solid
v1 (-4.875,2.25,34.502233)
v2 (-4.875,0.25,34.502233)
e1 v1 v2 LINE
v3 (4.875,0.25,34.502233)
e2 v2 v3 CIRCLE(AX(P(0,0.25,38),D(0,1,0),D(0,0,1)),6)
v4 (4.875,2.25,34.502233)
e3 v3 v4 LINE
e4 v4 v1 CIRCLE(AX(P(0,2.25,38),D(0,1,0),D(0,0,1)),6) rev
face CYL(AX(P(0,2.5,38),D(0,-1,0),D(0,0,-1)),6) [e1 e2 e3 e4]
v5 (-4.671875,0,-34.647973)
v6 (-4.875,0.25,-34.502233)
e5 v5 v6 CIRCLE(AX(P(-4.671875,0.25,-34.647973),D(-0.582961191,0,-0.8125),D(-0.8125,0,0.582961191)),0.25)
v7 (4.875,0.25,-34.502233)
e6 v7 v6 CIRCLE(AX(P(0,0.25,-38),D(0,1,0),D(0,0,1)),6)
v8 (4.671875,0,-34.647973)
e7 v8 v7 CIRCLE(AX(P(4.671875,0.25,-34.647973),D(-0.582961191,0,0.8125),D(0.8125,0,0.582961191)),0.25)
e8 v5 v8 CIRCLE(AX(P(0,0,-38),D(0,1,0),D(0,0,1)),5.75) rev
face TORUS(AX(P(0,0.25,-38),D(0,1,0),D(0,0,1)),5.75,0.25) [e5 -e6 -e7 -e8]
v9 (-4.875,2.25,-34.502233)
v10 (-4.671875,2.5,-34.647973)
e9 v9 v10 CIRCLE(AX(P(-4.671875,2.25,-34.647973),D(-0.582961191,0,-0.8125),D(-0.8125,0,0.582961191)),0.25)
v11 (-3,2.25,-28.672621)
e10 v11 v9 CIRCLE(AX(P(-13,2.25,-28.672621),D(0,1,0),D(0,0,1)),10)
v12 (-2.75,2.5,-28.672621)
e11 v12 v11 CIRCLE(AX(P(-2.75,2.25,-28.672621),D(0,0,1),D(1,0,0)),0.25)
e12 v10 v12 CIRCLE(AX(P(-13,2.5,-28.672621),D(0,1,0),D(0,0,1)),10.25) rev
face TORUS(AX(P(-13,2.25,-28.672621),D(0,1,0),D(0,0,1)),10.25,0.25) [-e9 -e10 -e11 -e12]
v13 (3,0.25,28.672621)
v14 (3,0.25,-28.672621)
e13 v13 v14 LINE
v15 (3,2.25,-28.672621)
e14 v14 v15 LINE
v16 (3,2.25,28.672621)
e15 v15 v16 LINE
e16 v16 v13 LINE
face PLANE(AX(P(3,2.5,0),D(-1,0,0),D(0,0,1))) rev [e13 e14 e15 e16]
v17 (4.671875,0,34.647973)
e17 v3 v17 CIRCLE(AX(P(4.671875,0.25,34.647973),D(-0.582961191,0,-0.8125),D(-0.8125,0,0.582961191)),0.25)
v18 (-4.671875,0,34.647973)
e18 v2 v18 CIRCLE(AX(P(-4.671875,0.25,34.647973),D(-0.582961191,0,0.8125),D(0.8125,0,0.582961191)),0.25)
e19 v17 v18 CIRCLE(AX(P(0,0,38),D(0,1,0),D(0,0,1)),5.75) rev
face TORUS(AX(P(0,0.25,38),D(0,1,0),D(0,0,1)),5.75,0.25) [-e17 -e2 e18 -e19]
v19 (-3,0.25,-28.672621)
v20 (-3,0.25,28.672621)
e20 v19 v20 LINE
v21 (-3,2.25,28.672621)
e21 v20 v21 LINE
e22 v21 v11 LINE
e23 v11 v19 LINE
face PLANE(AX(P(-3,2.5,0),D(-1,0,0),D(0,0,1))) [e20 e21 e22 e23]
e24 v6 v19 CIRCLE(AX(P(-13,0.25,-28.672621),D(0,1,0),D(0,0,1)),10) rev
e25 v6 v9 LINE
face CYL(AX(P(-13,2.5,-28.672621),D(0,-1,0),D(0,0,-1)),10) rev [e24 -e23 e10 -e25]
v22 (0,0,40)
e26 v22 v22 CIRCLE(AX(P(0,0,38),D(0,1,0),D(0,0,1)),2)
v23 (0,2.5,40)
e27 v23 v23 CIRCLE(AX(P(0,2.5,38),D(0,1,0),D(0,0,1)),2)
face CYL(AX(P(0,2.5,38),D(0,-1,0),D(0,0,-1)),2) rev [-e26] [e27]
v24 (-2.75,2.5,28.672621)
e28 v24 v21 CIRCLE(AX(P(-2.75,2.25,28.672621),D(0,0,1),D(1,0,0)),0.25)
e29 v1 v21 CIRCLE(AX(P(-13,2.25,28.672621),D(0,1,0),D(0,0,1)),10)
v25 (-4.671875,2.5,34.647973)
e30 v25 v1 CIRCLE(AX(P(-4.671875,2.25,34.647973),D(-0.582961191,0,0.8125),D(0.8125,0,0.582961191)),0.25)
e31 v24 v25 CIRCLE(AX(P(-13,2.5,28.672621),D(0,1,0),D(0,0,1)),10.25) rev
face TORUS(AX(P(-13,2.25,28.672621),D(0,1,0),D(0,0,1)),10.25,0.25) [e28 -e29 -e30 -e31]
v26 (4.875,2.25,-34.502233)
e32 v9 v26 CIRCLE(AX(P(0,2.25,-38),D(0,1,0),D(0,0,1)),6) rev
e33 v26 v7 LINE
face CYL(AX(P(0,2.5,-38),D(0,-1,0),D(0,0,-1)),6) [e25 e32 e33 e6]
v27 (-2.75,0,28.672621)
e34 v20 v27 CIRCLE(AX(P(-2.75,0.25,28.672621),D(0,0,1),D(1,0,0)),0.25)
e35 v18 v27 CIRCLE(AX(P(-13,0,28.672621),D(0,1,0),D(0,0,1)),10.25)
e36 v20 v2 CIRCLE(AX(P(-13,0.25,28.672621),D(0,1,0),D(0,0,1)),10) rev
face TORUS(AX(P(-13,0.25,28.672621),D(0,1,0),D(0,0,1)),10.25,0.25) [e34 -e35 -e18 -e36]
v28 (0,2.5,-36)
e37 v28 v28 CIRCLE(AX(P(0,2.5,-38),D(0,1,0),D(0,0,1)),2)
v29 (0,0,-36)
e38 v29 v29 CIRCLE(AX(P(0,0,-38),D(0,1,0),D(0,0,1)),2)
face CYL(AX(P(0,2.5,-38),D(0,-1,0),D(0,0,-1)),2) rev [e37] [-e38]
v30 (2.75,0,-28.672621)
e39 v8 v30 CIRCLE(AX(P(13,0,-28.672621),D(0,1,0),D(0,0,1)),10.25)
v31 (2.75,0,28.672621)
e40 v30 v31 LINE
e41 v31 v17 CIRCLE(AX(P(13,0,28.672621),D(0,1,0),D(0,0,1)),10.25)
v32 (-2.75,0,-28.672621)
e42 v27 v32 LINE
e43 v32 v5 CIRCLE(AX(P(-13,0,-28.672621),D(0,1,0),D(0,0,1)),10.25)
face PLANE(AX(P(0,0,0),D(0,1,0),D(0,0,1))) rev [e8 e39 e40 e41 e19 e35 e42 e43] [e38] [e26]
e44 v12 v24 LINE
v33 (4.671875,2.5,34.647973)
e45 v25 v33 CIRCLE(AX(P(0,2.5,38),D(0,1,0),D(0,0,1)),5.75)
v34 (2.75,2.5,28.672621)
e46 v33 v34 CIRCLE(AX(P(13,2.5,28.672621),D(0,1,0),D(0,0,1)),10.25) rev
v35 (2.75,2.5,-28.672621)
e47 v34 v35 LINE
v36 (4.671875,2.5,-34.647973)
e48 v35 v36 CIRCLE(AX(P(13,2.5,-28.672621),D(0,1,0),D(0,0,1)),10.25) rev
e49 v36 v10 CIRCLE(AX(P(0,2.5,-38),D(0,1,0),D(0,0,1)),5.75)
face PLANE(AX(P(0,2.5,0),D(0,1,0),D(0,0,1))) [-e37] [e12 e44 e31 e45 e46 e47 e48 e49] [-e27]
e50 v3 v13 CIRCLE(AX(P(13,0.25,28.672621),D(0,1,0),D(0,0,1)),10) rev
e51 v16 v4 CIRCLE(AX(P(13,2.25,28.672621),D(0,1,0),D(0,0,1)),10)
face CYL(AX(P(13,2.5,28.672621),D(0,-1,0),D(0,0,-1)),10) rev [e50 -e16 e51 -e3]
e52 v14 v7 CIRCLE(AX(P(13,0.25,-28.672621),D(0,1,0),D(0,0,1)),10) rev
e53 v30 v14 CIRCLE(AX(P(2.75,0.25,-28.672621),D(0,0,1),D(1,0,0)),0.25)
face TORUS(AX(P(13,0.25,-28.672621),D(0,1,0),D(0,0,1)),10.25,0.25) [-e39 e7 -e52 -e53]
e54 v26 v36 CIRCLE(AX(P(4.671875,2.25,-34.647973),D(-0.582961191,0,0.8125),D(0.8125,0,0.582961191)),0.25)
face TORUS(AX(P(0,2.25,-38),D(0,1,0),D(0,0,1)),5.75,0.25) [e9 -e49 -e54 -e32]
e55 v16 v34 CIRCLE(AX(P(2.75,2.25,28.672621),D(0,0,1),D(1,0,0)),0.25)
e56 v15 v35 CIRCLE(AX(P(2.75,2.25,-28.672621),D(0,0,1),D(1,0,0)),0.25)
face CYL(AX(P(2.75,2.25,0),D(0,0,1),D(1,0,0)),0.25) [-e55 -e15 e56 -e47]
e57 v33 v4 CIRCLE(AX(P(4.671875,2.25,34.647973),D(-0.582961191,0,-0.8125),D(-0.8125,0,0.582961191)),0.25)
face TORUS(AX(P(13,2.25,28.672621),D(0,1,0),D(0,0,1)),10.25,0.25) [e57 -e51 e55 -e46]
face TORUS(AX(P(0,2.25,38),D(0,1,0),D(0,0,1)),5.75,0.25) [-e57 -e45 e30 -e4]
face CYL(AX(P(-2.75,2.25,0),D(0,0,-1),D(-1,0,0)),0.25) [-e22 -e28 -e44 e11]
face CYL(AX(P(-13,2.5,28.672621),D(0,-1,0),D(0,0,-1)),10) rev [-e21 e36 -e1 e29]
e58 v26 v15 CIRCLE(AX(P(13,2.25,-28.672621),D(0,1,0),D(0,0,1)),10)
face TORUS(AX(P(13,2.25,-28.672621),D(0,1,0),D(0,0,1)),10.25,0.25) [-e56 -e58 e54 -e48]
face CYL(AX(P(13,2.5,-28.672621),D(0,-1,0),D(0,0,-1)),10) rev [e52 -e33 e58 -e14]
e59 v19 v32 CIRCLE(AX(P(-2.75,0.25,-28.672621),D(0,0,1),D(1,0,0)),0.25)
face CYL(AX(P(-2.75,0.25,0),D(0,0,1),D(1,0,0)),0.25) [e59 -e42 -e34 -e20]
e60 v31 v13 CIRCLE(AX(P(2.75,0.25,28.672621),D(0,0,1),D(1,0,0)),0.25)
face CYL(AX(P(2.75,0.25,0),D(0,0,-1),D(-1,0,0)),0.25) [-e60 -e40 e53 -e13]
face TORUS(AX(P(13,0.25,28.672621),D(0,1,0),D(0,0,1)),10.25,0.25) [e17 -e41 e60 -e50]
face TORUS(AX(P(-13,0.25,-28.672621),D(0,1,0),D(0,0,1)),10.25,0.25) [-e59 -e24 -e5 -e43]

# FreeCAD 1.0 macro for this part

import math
import FreeCAD as App
import Part
import Sketcher

V = App.Vector


def edges_at(feature, points):
    """Names of the edges that pass closest to the given points."""
    edges = feature.Shape.Edges
    near = lambda p: min(range(len(edges)), key=lambda i: edges[i].distToShape(Part.Vertex(*p))[0])
    return sorted({f"Edge{near(p) + 1}" for p in points})

doc = App.newDocument("Part")
body = doc.addObject("PartDesign::Body", "Body")

# Sketch on XZ plane
sketch1 = doc.addObject("Sketcher::SketchObject", "Sketch")
body.addObject(sketch1)
sketch1.AttachmentSupport = (doc.XZ_Plane, [""])
sketch1.MapMode = "FlatFace"
sketch1.addGeometry(Part.ArcOfCircle(Part.Circle(V(0, 38, 0), V(0, 0, 1), 6), math.radians(-60), math.radians(240)), False)
sketch1.addGeometry(Part.LineSegment(V(3, 32.8, 0), V(3, -32.8, 0)), False)
sketch1.addGeometry(Part.ArcOfCircle(Part.Circle(V(0, -38, 0), V(0, 0, 1), 6), math.radians(120), math.radians(420)), False)
sketch1.addGeometry(Part.LineSegment(V(-3, -32.8, 0), V(-3, 32.8, 0)), False)
sketch1.addGeometry(Part.Circle(V(0, 38, 0), V(0, 0, 1), 2), False)
sketch1.addGeometry(Part.Circle(V(0, -38, 0), V(0, 0, 1), 2), False)
sketch1.addConstraint(Sketcher.Constraint("Coincident", 0, 1, 1, 1))
sketch1.addConstraint(Sketcher.Constraint("Coincident", 1, 2, 2, 2))
sketch1.addConstraint(Sketcher.Constraint("Coincident", 2, 1, 3, 1))
sketch1.addConstraint(Sketcher.Constraint("Coincident", 3, 2, 0, 2))
sketch1.addConstraint(Sketcher.Constraint("Vertical", 1))
sketch1.addConstraint(Sketcher.Constraint("Vertical", 3))
sketch1.addConstraint(Sketcher.Constraint("Coincident", 4, 3, 0, 3))
sketch1.addConstraint(Sketcher.Constraint("Coincident", 5, 3, 2, 3))
sketch1.addConstraint(Sketcher.Constraint("Equal", 0, 2))
sketch1.addConstraint(Sketcher.Constraint("Equal", 4, 5))
sketch1.addConstraint(Sketcher.Constraint("Symmetric", 0, 3, 2, 3, -1, 1))
sketch1.addConstraint(Sketcher.Constraint("Symmetric", 1, 2, 2, 1, -2))
sketch1.addConstraint(Sketcher.Constraint("Diameter", 4, 4.0))
sketch1.addConstraint(Sketcher.Constraint("Radius", 0, 6.0))
sketch1.addConstraint(Sketcher.Constraint("DistanceY", -1, 1, 0, 3, 38.0))
sketch1.addConstraint(Sketcher.Constraint("DistanceX", -1, 1, 0, 1, 3.0))
pad1 = doc.addObject("PartDesign::Pad", "Pad")
body.addObject(pad1)
pad1.Profile = sketch1
pad1.Length = 2.5
pad1.Reversed = True
doc.recompute()

fillet = doc.addObject("PartDesign::Fillet", "Fillet")
body.addObject(fillet)
fillet.Base = (pad1, edges_at(pad1, [
    (-3, 1.25, 32.804),
    (-3, 1.25, -32.804),
    (3, 1.25, -32.804),
    (3, 1.25, 32.804),
]))
fillet.Radius = 10
doc.recompute()

fillet2 = doc.addObject("PartDesign::Fillet", "Fillet001")
body.addObject(fillet2)
fillet2.Base = (fillet, edges_at(fillet, [
    (0, 0, 44),
    (0, 2.5, 44),
    (-3, 0, 0),
    (-3, 2.5, 0),
    (0, 0, -44),
    (0, 2.5, -44),
    (3, 0, 0),
    (3, 2.5, 0),
    (-3.48, 0, 31.734),
    (-3.48, 2.5, 31.734),
    (-3.48, 0, -31.734),
    (-3.48, 2.5, -31.734),
    (3.48, 0, -31.734),
    (3.48, 2.5, -31.734),
    (3.48, 0, 31.734),
    (3.48, 2.5, 31.734),
]))
fillet2.Radius = 0.25

doc.recompute()
